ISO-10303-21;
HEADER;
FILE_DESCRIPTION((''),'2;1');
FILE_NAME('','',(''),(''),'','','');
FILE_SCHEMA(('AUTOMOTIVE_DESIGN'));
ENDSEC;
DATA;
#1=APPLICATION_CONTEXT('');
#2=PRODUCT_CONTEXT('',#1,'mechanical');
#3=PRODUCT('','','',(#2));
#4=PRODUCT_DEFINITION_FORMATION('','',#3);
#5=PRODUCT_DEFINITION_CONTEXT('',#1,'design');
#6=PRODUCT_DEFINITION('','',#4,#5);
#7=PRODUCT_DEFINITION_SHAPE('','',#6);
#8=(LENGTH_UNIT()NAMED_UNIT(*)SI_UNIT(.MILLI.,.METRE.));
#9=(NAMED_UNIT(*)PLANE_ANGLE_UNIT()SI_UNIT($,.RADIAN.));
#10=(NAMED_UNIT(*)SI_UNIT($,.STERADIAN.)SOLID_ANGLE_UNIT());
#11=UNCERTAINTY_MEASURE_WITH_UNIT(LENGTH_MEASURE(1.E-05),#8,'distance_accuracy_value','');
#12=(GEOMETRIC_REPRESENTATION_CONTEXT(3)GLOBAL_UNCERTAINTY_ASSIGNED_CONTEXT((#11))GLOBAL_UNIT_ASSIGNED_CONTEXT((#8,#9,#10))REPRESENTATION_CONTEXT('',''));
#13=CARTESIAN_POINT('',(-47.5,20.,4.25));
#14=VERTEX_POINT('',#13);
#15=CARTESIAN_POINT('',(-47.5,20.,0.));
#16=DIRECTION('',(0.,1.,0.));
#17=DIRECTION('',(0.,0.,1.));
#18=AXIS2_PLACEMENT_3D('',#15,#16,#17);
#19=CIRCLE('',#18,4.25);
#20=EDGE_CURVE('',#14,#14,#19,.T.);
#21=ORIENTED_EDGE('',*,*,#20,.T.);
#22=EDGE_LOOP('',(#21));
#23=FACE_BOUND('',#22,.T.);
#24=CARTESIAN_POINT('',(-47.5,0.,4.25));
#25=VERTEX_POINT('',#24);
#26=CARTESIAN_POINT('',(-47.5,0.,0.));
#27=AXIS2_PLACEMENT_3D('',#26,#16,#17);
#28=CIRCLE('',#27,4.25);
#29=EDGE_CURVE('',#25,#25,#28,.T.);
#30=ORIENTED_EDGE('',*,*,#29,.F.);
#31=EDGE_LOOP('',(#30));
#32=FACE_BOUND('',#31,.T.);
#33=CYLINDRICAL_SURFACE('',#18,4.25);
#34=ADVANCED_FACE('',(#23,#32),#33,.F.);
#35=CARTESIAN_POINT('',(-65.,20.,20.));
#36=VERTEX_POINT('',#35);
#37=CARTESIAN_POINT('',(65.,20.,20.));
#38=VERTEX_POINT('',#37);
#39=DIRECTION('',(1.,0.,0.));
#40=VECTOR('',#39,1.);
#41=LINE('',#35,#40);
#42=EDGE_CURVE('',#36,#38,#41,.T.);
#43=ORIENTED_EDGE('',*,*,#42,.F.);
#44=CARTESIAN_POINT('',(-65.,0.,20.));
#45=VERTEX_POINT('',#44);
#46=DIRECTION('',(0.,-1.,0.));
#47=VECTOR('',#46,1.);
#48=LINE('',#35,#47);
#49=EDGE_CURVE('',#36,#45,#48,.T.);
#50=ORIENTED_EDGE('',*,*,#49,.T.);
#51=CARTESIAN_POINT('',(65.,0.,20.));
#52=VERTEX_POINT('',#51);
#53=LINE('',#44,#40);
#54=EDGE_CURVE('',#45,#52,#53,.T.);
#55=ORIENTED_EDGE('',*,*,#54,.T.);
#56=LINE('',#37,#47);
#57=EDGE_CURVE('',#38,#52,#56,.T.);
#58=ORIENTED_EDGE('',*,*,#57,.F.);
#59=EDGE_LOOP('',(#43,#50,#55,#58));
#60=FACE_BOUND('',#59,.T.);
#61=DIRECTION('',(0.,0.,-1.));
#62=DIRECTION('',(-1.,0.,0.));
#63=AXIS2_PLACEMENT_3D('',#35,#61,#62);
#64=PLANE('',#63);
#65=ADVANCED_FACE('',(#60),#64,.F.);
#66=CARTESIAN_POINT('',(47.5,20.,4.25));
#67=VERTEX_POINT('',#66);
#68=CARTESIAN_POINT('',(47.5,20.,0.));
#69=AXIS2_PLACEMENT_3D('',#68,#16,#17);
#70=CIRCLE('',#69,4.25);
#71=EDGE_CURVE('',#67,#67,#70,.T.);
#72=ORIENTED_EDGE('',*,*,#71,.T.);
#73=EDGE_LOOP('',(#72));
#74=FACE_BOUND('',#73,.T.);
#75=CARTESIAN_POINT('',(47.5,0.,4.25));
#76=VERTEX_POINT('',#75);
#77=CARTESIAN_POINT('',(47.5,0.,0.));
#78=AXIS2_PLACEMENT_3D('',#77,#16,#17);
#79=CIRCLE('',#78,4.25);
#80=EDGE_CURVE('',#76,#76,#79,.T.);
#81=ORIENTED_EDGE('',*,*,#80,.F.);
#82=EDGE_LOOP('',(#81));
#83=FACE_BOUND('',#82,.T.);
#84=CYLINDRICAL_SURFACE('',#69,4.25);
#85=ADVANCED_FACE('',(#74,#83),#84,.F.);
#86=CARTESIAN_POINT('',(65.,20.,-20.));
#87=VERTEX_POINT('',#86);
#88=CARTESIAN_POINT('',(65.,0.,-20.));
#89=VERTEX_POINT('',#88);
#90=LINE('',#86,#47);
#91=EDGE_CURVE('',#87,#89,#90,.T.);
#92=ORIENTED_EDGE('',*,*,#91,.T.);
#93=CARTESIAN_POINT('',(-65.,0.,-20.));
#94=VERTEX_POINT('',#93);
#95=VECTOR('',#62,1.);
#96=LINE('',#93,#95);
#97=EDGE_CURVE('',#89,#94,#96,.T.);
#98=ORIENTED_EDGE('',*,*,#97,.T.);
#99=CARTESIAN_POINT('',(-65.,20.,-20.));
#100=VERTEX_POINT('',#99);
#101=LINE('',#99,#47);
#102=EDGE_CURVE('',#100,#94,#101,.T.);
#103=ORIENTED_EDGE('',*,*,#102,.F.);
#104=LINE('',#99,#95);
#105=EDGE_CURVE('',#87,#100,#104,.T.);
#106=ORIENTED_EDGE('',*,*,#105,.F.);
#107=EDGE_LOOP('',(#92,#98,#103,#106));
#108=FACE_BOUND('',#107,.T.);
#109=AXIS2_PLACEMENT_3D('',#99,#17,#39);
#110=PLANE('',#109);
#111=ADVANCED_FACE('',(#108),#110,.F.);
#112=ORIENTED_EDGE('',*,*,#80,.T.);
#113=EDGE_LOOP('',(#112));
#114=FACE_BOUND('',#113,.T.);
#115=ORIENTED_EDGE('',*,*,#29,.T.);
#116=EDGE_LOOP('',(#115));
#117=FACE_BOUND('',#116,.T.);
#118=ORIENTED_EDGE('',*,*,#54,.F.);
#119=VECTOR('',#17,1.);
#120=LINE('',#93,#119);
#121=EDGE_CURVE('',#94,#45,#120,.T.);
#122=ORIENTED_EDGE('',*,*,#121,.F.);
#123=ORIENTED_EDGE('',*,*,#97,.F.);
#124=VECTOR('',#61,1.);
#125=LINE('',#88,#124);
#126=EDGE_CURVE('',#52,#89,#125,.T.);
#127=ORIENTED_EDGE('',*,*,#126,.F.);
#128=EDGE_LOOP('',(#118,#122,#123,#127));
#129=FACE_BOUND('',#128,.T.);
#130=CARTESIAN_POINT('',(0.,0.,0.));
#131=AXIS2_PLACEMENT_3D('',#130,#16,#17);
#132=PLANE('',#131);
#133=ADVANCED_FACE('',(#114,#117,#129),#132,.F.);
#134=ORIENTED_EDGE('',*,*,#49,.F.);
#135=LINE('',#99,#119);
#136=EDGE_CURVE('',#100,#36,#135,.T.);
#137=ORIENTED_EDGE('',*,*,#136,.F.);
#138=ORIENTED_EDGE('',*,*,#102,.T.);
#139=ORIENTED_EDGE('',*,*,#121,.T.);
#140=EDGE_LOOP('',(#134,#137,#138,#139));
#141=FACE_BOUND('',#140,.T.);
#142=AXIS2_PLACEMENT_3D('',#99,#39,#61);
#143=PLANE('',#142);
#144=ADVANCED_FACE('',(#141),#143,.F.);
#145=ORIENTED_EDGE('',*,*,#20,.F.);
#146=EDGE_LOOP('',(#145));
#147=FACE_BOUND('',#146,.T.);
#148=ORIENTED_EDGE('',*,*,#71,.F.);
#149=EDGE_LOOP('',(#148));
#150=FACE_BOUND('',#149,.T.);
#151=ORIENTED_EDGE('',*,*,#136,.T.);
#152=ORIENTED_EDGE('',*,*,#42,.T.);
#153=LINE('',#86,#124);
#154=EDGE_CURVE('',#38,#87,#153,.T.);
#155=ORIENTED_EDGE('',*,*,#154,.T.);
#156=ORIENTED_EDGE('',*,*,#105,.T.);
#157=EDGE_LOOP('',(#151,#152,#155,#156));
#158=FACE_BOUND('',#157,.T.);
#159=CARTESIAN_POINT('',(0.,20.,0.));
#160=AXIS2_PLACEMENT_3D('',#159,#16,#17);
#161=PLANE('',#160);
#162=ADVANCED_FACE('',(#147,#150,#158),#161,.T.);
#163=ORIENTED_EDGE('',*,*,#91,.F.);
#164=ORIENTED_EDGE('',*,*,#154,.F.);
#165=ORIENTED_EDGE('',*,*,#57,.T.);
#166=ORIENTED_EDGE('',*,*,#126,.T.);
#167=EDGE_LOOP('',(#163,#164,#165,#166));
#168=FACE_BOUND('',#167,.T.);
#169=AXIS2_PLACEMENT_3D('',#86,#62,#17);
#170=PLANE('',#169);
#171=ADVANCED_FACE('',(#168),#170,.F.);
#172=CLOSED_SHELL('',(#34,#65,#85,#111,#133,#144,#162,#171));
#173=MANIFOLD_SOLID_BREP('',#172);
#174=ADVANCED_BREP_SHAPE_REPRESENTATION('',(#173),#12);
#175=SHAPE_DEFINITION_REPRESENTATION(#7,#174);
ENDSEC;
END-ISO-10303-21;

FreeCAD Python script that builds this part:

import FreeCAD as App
import Part
import Sketcher
from FreeCAD import Vector


def add_polygon(sketch, points):
    """Adds a closed chain of lines whose ends are joined by coincident constraints."""
    first, n = sketch.GeometryCount, len(points)
    for a, b in zip(points, points[1:] + points[:1]):
        sketch.addGeometry(Part.LineSegment(App.Vector(*a, 0), App.Vector(*b, 0)), False)
    for i in range(n):
        sketch.addConstraint(Sketcher.Constraint("Coincident", first + i, 2, first + (i + 1) % n, 1))

doc = App.newDocument("Part")
body = doc.addObject("PartDesign::Body", "Body")

# Sketch on XZ plane
sketch1 = body.newObject("Sketcher::SketchObject", "Sketch")
sketch1.AttachmentSupport = (doc.getObject("XZ_Plane"), [""])
sketch1.MapMode = "FlatFace"
add_polygon(sketch1, [(-65, -20), (-65, 20), (65, 20), (65, -20)])  # lines 0-3
sketch1.addConstraint(Sketcher.Constraint("Vertical", 0))
sketch1.addConstraint(Sketcher.Constraint("Horizontal", 1))
sketch1.addConstraint(Sketcher.Constraint("Vertical", 2))
sketch1.addConstraint(Sketcher.Constraint("Horizontal", 3))
sketch1.addConstraint(Sketcher.Constraint("Symmetric", 0, 2, 2, 2, -1, 1))
sketch1.addConstraint(Sketcher.Constraint("DistanceX", 1, 1, 1, 2, 130.0))
sketch1.addConstraint(Sketcher.Constraint("DistanceY", 0, 1, 0, 2, 40.0))
pad1 = body.newObject("PartDesign::Pad", "Pad")
pad1.Profile = sketch1
pad1.Length = 20
pad1.Reversed = True

# Sketch on XZ plane
sketch2 = body.newObject("Sketcher::SketchObject", "Sketch001")
sketch2.AttachmentSupport = (doc.getObject("XZ_Plane"), [""])
sketch2.MapMode = "FlatFace"
sketch2.AttachmentOffset = App.Placement(Vector(0, 0, -20), App.Rotation())
sketch2.addGeometry(Part.Circle(Vector(47.5, 0, 0), Vector(0, 0, 1), 4.25), False)
sketch2.addGeometry(Part.Circle(Vector(-47.5, 0, 0), Vector(0, 0, 1), 4.25), False)
sketch2.addConstraint(Sketcher.Constraint("Equal", 0, 1))
sketch2.addConstraint(Sketcher.Constraint("Symmetric", 0, 3, 1, 3, -1, 1))
sketch2.addConstraint(Sketcher.Constraint("PointOnObject", 0, 3, -1))
sketch2.addConstraint(Sketcher.Constraint("Diameter", 0, 8.5))
sketch2.addConstraint(Sketcher.Constraint("DistanceX", 1, 3, 0, 3, 95.0))
doc.recompute()
hole = body.newObject("PartDesign::Hole", "Hole")
hole.Profile = sketch2
hole.ThreadType = "None"
hole.Diameter = 8.5
hole.DepthType = "Dimension"
hole.Depth = 24.5
hole.DrillPoint = "Angled"
hole.DrillPointAngle = 118
hole.Reversed = True

doc.recompute()
